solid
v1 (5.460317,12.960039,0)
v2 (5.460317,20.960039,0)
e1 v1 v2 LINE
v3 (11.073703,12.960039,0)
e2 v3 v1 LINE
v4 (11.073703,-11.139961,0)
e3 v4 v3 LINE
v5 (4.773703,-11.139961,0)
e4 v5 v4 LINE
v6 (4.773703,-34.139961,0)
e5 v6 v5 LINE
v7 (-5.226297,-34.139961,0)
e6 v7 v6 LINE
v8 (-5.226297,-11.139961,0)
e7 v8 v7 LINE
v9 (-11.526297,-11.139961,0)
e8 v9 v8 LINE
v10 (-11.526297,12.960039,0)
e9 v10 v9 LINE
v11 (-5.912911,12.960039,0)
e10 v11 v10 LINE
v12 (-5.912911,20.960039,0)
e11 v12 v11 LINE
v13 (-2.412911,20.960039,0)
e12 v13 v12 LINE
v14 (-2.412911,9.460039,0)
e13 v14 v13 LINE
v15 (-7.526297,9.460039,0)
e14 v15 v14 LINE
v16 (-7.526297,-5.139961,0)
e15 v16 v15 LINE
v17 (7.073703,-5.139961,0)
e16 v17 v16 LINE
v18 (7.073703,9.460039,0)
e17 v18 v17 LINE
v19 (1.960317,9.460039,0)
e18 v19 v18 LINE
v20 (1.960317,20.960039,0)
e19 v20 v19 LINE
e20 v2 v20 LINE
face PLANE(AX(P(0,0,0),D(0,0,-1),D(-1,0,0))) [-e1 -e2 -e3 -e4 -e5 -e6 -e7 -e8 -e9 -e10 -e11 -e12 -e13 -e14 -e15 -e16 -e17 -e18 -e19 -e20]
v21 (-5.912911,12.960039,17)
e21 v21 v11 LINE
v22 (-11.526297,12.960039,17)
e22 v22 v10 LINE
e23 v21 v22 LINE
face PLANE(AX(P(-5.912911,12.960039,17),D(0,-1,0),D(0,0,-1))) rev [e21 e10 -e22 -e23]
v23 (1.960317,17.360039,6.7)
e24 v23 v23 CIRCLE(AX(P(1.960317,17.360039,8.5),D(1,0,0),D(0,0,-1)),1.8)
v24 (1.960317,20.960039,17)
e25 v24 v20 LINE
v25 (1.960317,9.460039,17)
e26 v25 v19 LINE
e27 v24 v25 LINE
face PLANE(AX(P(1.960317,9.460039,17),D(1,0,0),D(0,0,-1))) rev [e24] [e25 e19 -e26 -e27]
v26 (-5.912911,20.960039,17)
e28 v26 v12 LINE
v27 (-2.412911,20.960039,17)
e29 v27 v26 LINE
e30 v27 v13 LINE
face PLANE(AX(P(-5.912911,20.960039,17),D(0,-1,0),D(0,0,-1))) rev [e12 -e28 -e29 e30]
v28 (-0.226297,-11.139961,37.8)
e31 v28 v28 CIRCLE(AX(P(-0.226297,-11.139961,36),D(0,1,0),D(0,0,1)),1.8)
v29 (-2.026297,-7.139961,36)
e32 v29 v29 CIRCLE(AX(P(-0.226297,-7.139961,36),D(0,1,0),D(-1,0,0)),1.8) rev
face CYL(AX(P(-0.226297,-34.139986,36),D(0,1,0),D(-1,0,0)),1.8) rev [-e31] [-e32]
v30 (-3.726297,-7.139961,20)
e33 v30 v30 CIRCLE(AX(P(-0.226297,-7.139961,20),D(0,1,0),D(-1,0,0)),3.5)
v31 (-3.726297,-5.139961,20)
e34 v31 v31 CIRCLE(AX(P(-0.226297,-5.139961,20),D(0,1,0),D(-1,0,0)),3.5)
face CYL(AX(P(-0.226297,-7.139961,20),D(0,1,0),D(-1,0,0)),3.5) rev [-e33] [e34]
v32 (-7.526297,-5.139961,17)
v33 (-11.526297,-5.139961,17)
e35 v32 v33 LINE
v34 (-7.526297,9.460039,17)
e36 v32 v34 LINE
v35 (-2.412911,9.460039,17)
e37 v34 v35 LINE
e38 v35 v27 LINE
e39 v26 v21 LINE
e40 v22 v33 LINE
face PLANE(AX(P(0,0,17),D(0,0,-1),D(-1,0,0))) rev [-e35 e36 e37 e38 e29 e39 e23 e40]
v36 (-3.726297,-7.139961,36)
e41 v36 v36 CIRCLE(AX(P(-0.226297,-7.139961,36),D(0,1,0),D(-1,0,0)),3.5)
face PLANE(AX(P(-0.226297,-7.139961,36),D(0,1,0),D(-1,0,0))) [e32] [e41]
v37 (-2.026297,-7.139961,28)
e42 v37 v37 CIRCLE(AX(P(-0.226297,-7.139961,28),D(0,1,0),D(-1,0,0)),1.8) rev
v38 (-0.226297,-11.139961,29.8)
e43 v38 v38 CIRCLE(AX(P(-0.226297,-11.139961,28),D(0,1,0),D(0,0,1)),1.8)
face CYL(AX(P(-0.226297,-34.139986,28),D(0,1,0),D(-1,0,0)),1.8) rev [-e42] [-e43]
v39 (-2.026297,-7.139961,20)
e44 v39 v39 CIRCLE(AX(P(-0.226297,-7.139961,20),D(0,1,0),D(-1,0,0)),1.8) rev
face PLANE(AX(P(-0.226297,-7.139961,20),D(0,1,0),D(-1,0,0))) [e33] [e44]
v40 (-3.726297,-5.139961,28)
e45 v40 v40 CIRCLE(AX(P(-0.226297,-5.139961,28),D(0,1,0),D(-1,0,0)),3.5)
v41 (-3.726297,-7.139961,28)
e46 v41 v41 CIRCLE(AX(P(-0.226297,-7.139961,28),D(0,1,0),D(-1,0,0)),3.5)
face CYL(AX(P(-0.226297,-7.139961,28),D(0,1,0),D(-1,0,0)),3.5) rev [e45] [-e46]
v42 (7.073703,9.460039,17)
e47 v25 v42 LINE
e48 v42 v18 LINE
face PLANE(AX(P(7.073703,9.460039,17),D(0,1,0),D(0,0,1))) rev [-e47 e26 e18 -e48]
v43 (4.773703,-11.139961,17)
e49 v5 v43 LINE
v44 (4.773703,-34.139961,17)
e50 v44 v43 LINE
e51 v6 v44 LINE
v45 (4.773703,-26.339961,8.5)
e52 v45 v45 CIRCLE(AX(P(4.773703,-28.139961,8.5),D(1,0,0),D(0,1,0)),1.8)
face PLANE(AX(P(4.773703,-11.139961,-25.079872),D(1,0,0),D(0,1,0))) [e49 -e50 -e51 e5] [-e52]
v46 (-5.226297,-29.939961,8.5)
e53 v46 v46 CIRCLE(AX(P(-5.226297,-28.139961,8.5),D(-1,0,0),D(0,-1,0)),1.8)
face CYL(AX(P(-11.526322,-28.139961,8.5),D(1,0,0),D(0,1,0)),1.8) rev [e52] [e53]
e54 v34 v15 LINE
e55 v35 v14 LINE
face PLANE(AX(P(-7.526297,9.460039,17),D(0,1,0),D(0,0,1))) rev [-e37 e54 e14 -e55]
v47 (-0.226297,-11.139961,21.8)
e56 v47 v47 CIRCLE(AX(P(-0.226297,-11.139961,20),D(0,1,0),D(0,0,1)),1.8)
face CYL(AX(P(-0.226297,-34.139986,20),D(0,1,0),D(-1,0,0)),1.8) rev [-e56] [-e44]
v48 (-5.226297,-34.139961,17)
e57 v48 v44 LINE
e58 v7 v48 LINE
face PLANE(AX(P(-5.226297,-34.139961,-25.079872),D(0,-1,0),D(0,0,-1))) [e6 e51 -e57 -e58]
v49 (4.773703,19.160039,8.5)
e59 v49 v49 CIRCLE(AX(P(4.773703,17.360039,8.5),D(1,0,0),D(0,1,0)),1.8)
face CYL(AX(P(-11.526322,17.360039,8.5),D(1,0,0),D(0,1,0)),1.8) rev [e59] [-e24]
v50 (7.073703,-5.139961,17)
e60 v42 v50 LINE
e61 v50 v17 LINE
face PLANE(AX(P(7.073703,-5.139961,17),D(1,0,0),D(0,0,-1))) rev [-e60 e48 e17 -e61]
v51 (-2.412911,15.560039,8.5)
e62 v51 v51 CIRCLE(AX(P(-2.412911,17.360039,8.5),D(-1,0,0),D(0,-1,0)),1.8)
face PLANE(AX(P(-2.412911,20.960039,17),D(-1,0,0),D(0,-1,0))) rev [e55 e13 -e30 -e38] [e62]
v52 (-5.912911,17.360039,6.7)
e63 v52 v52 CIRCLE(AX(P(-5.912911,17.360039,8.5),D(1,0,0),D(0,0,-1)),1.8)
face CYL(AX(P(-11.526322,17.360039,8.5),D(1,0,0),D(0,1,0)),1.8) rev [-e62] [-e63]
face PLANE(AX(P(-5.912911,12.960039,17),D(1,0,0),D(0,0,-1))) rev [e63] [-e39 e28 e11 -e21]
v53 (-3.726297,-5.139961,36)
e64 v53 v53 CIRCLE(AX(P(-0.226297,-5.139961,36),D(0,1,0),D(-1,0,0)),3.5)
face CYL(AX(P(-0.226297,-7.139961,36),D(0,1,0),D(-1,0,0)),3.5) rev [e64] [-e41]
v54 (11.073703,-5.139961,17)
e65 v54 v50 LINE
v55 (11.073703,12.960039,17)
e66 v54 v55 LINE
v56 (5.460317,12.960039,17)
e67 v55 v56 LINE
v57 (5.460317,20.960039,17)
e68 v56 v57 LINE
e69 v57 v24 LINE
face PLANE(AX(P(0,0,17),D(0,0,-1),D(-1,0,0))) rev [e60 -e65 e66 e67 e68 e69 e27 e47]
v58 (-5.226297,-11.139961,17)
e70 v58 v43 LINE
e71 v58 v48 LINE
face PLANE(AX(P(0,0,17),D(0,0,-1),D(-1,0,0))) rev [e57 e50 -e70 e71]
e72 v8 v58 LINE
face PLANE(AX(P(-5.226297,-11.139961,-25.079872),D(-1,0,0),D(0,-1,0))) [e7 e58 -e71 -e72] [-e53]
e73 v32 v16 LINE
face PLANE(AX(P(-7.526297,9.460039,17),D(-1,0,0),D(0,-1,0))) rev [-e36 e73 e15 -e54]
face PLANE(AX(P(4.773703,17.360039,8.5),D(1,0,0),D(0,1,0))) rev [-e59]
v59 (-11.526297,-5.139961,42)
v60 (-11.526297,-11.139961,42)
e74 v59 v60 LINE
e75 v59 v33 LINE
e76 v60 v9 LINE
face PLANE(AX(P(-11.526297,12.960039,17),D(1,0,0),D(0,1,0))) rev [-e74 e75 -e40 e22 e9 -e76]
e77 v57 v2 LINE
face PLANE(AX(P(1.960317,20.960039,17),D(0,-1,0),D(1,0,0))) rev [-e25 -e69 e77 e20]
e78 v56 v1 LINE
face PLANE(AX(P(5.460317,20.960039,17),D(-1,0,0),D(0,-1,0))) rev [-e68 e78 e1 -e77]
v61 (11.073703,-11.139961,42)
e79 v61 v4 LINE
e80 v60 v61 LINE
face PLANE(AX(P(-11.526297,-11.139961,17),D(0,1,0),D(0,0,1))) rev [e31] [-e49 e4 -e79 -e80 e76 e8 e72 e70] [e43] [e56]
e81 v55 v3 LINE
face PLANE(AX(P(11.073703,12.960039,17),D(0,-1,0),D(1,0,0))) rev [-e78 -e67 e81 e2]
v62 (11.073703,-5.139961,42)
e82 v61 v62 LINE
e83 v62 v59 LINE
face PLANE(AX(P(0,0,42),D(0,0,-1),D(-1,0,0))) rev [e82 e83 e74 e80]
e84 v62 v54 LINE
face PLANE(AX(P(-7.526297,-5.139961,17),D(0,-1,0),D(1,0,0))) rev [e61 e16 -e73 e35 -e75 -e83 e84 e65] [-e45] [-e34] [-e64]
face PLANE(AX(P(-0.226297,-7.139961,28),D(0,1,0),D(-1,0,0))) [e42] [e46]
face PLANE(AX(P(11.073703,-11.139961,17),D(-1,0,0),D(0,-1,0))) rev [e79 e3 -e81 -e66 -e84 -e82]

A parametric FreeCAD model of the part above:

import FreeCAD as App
import Part
import Sketcher
from FreeCAD import Vector
Q = App.Units.Quantity

doc = App.newDocument("Part")
body = doc.addObject("PartDesign::Body", "Body")

sketch1 = doc.addObject("Sketcher::SketchObject", "Sketch")
body.addObject(sketch1)
sketch1.AttachmentSupport = (doc.XY_Plane, [""])
sketch1.MapMode = "FlatFace"
sketch1.addGeometry([
    Part.LineSegment(Vector(-7.5, -5.1, 0), Vector(-7.5, 9.5, 0)),
    Part.LineSegment(Vector(-7.5, 9.5, 0), Vector(-2.4, 9.5, 0)),
    Part.LineSegment(Vector(-2.4, 9.5, 0), Vector(-2.4, 21, 0)),
    Part.LineSegment(Vector(-2.4, 21, 0), Vector(-5.9, 21, 0)),
    Part.LineSegment(Vector(-5.9, 21, 0), Vector(-5.9, 13, 0)),
    Part.LineSegment(Vector(-5.9, 13, 0), Vector(-11.5, 13, 0)),
    Part.LineSegment(Vector(-11.5, 13, 0), Vector(-11.5, -11.1, 0)),
    Part.LineSegment(Vector(-11.5, -11.1, 0), Vector(11.1, -11.1, 0)),
    Part.LineSegment(Vector(11.1, -11.1, 0), Vector(11.1, 13, 0)),
    Part.LineSegment(Vector(11.1, 13, 0), Vector(5.5, 13, 0)),
    Part.LineSegment(Vector(5.5, 13, 0), Vector(5.5, 21, 0)),
    Part.LineSegment(Vector(5.5, 21, 0), Vector(2, 21, 0)),
    Part.LineSegment(Vector(2, 21, 0), Vector(2, 9.5, 0)),
    Part.LineSegment(Vector(2, 9.5, 0), Vector(7.1, 9.5, 0)),
    Part.LineSegment(Vector(7.1, 9.5, 0), Vector(7.1, -5.1, 0)),
    Part.LineSegment(Vector(7.1, -5.1, 0), Vector(-7.5, -5.1, 0)),
], False)
sketch1.addConstraint([
    Sketcher.Constraint("Coincident", 0, 2, 1, 1),
    Sketcher.Constraint("Coincident", 1, 2, 2, 1),
    Sketcher.Constraint("Coincident", 2, 2, 3, 1),
    Sketcher.Constraint("Coincident", 3, 2, 4, 1),
    Sketcher.Constraint("Coincident", 4, 2, 5, 1),
    Sketcher.Constraint("Coincident", 5, 2, 6, 1),
    Sketcher.Constraint("Coincident", 6, 2, 7, 1),
    Sketcher.Constraint("Coincident", 7, 2, 8, 1),
    Sketcher.Constraint("Coincident", 8, 2, 9, 1),
    Sketcher.Constraint("Coincident", 9, 2, 10, 1),
    Sketcher.Constraint("Coincident", 10, 2, 11, 1),
    Sketcher.Constraint("Coincident", 11, 2, 12, 1),
    Sketcher.Constraint("Coincident", 12, 2, 13, 1),
    Sketcher.Constraint("Coincident", 13, 2, 14, 1),
    Sketcher.Constraint("Coincident", 14, 2, 15, 1),
    Sketcher.Constraint("Coincident", 15, 2, 0, 1),
    Sketcher.Constraint("Vertical", 0),
    Sketcher.Constraint("Horizontal", 1),
    Sketcher.Constraint("Vertical", 2),
    Sketcher.Constraint("Horizontal", 3),
    Sketcher.Constraint("Vertical", 4),
    Sketcher.Constraint("Horizontal", 5),
    Sketcher.Constraint("Vertical", 6),
    Sketcher.Constraint("Horizontal", 7),
    Sketcher.Constraint("Vertical", 8),
    Sketcher.Constraint("Horizontal", 9),
    Sketcher.Constraint("Vertical", 10),
    Sketcher.Constraint("Horizontal", 11),
    Sketcher.Constraint("Vertical", 12),
    Sketcher.Constraint("Horizontal", 13),
    Sketcher.Constraint("Vertical", 14),
    Sketcher.Constraint("Horizontal", 15),
    Sketcher.Constraint("Horizontal", 5, 2, 8, 2),
    Sketcher.Constraint("Horizontal", 3, 2, 10, 2),
    Sketcher.Constraint("Horizontal", 1, 2, 12, 2),
    Sketcher.Constraint("Equal", 5, 9),
    Sketcher.Constraint("Equal", 3, 11),
    Sketcher.Constraint("Equal", 1, 13),
    Sketcher.Constraint("Equal", 15, 0),
    Sketcher.Constraint("DistanceY", 4, 2, 4, 1, Q("8 mm")),
    Sketcher.Constraint("DistanceX", 3, 2, 3, 1, Q("3.5 mm")),
    Sketcher.Constraint("DistanceX", 7, 1, 7, 2, Q("22.6 mm")),
    Sketcher.Constraint("DistanceX", 15, 2, 15, 1, Q("14.6 mm")),
    Sketcher.Constraint("DistanceY", 2, 1, 2, 2, Q("11.5 mm")),
    Sketcher.Constraint("DistanceY", 6, 2, 6, 1, Q("24.1 mm")),
    Sketcher.Constraint("DistanceX", 1, 1, 1, 2, Q("5.113386 mm")),
    Sketcher.Constraint("DistanceY", -1, 1, 0, 2, Q("9.460039 mm")),
    Sketcher.Constraint("DistanceX", 1, 2, -1, 1, Q("2.412911 mm")),
])
pad1 = doc.addObject("PartDesign::Pad", "Pad")
body.addObject(pad1)
pad1.Profile = sketch1
pad1.Length = 17

sketch2 = doc.addObject("Sketcher::SketchObject", "Sketch001")
body.addObject(sketch2)
sketch2.AttachmentSupport = (doc.XY_Plane, [""])
sketch2.MapMode = "FlatFace"
sketch2.AttachmentOffset = App.Placement(Vector(0, 0, 17), App.Rotation())
sketch2.addGeometry([
    Part.LineSegment(Vector(-5, -11, 0), Vector(-5, -34, 0)),
    Part.LineSegment(Vector(-5, -34, 0), Vector(5, -34, 0)),
    Part.LineSegment(Vector(5, -34, 0), Vector(5, -11, 0)),
    Part.LineSegment(Vector(5, -11, 0), Vector(-5, -11, 0)),
], False)
sketch2.addConstraint([
    Sketcher.Constraint("Coincident", 0, 2, 1, 1),
    Sketcher.Constraint("Coincident", 1, 2, 2, 1),
    Sketcher.Constraint("Coincident", 2, 2, 3, 1),
    Sketcher.Constraint("Coincident", 3, 2, 0, 1),
    Sketcher.Constraint("Vertical", 0),
    Sketcher.Constraint("Horizontal", 1),
    Sketcher.Constraint("Vertical", 2),
    Sketcher.Constraint("Horizontal", 3),
    Sketcher.Constraint("DistanceX", 1, 1, 1, 2, Q("10 mm")),
    Sketcher.Constraint("DistanceY", 0, 2, 0, 1, Q("23 mm")),
    Sketcher.Constraint("DistanceY", 0, 2, -1, 1, Q("34.139961 mm")),
    Sketcher.Constraint("DistanceX", 0, 2, -1, 1, Q("5.226297 mm")),
])
pad2 = doc.addObject("PartDesign::Pad", "Pad001")
body.addObject(pad2)
pad2.Profile = sketch2
pad2.Length = 17
pad2.Reversed = True

sketch3 = doc.addObject("Sketcher::SketchObject", "Sketch002")
body.addObject(sketch3)
sketch3.AttachmentSupport = (doc.YZ_Plane, [""])
sketch3.MapMode = "FlatFace"
sketch3.AttachmentOffset = App.Placement(Vector(0, 0, 4.773703), App.Rotation())
sketch3.addGeometry([
    Part.Circle(Vector(-28.1, 8.5, 0), Vector(0, 0, 1), 1.8),
    Part.Circle(Vector(17.4, 8.5, 0), Vector(0, 0, 1), 1.8),
], False)
sketch3.addConstraint([
    Sketcher.Constraint("Equal", 0, 1),
    Sketcher.Constraint("Horizontal", 0, 3, 1, 3),
    Sketcher.Constraint("Diameter", 0, Q("3.6 mm")),
    Sketcher.Constraint("DistanceY", -1, 1, 0, 3, Q("8.5 mm")),
    Sketcher.Constraint("DistanceX", 0, 3, 1, 3, Q("45.5 mm")),
    Sketcher.Constraint("DistanceX", 0, 3, -1, 1, Q("28.139961 mm")),
])
pocket1 = doc.addObject("PartDesign::Pocket", "Pocket")
body.addObject(pocket1)
pocket1.Profile = sketch3
pocket1.Type = "ThroughAll"

sketch4 = doc.addObject("Sketcher::SketchObject", "Sketch003")
body.addObject(sketch4)
sketch4.AttachmentSupport = (doc.XY_Plane, [""])
sketch4.MapMode = "FlatFace"
sketch4.AttachmentOffset = App.Placement(Vector(0, 0, 17), App.Rotation())
sketch4.addGeometry([
    Part.LineSegment(Vector(-12, -5, 0), Vector(-12, -11, 0)),
    Part.LineSegment(Vector(-12, -11, 0), Vector(11, -11, 0)),
    Part.LineSegment(Vector(11, -11, 0), Vector(11, -5, 0)),
    Part.LineSegment(Vector(11, -5, 0), Vector(-12, -5, 0)),
], False)
sketch4.addConstraint([
    Sketcher.Constraint("Coincident", 0, 2, 1, 1),
    Sketcher.Constraint("Coincident", 1, 2, 2, 1),
    Sketcher.Constraint("Coincident", 2, 2, 3, 1),
    Sketcher.Constraint("Coincident", 3, 2, 0, 1),
    Sketcher.Constraint("Vertical", 0),
    Sketcher.Constraint("Horizontal", 1),
    Sketcher.Constraint("Vertical", 2),
    Sketcher.Constraint("Horizontal", 3),
    Sketcher.Constraint("DistanceY", 0, 2, 0, 1, Q("6 mm")),
    Sketcher.Constraint("DistanceX", 1, 1, 1, 2, Q("22.6 mm")),
    Sketcher.Constraint("DistanceY", 0, 2, -1, 1, Q("11.139961 mm")),
    Sketcher.Constraint("DistanceX", 0, 2, -1, 1, Q("11.526297 mm")),
])
pad3 = doc.addObject("PartDesign::Pad", "Pad002")
body.addObject(pad3)
pad3.Profile = sketch4
pad3.Length = 25

sketch5 = doc.addObject("Sketcher::SketchObject", "Sketch004")
body.addObject(sketch5)
sketch5.AttachmentSupport = (doc.XZ_Plane, [""])
sketch5.MapMode = "FlatFace"
sketch5.AttachmentOffset = App.Placement(Vector(0, 0, 5.139961), App.Rotation())
sketch5.addGeometry([
    Part.Circle(Vector(-0.2, 36, 0), Vector(0, 0, 1), 1.8),
    Part.Circle(Vector(-0.2, 28, 0), Vector(0, 0, 1), 1.8),
    Part.Circle(Vector(-0.2, 20, 0), Vector(0, 0, 1), 1.8),
], False)
sketch5.addConstraint([
    Sketcher.Constraint("Equal", 0, 1),
    Sketcher.Constraint("Equal", 1, 2),
    Sketcher.Constraint("Vertical", 0, 3, 1, 3),
    Sketcher.Constraint("Vertical", 1, 3, 2, 3),
    Sketcher.Constraint("Diameter", 0, Q("3.6 mm")),
    Sketcher.Constraint("DistanceY", -1, 1, 0, 3, Q("36 mm")),
    Sketcher.Constraint("DistanceY", -1, 1, 1, 3, Q("28 mm")),
    Sketcher.Constraint("DistanceY", -1, 1, 2, 3, Q("20 mm")),
    Sketcher.Constraint("DistanceX", 0, 3, -1, 1, Q("0.226297 mm")),
])
pocket2 = doc.addObject("PartDesign::Pocket", "Pocket001")
body.addObject(pocket2)
pocket2.Profile = sketch5
pocket2.Type = "ThroughAll"
pocket2.Reversed = True

sketch6 = doc.addObject("Sketcher::SketchObject", "Sketch005")
body.addObject(sketch6)
sketch6.AttachmentSupport = (doc.XZ_Plane, [""])
sketch6.MapMode = "FlatFace"
sketch6.AttachmentOffset = App.Placement(Vector(0, 0, 5.139961), App.Rotation())
sketch6.addGeometry([
    Part.Circle(Vector(-0.2, 36, 0), Vector(0, 0, 1), 3.5),
    Part.Circle(Vector(-0.2, 28, 0), Vector(0, 0, 1), 3.5),
    Part.Circle(Vector(-0.2, 20, 0), Vector(0, 0, 1), 3.5),
], False)
sketch6.addConstraint([
    Sketcher.Constraint("Equal", 0, 1),
    Sketcher.Constraint("Equal", 1, 2),
    Sketcher.Constraint("Vertical", 0, 3, 1, 3),
    Sketcher.Constraint("Vertical", 1, 3, 2, 3),
    Sketcher.Constraint("Diameter", 0, Q("7 mm")),
    Sketcher.Constraint("DistanceY", -1, 1, 0, 3, Q("36 mm")),
    Sketcher.Constraint("DistanceY", -1, 1, 1, 3, Q("28 mm")),
    Sketcher.Constraint("DistanceY", -1, 1, 2, 3, Q("20 mm")),
    Sketcher.Constraint("DistanceX", 0, 3, -1, 1, Q("0.226297 mm")),
])
pocket3 = doc.addObject("PartDesign::Pocket", "Pocket002")
body.addObject(pocket3)
pocket3.Profile = sketch6
pocket3.Length = 2
pocket3.Reversed = True

doc.recompute()
